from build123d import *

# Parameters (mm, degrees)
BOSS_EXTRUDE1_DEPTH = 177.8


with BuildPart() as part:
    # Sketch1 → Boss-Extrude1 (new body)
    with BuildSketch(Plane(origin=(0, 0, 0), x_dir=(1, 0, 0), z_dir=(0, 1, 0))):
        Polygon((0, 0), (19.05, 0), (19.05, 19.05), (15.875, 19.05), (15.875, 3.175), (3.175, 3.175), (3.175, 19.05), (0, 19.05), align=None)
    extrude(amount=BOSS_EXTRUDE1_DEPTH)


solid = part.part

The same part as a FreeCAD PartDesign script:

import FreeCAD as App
import Part
import Sketcher
from FreeCAD import Vector
Q = App.Units.Quantity

doc = App.newDocument("Part")
body = doc.addObject("PartDesign::Body", "Body")

sketch1 = body.newObject("Sketcher::SketchObject", "Sketch")
sketch1.AttachmentSupport = (doc.getObject("XZ_Plane"), [""])
sketch1.MapMode = "FlatFace"
sketch1.addGeometry([
    Part.LineSegment(Vector(0, 0, 0), Vector(19.05, 0, 0)),
    Part.LineSegment(Vector(19.05, 0, 0), Vector(19.05, -19.05, 0)),
    Part.LineSegment(Vector(19.05, -19.05, 0), Vector(15.875, -19.05, 0)),
    Part.LineSegment(Vector(15.875, -19.05, 0), Vector(15.875, -3.175, 0)),
    Part.LineSegment(Vector(15.875, -3.175, 0), Vector(3.175, -3.175, 0)),
    Part.LineSegment(Vector(3.175, -3.175, 0), Vector(3.175, -19.05, 0)),
    Part.LineSegment(Vector(3.175, -19.05, 0), Vector(0, -19.05, 0)),
    Part.LineSegment(Vector(0, -19.05, 0), Vector(0, 0, 0)),
], False)
sketch1.addConstraint([
    Sketcher.Constraint("Coincident", 0, 2, 1, 1),
    Sketcher.Constraint("Coincident", 1, 2, 2, 1),
    Sketcher.Constraint("Coincident", 2, 2, 3, 1),
    Sketcher.Constraint("Coincident", 3, 2, 4, 1),
    Sketcher.Constraint("Coincident", 4, 2, 5, 1),
    Sketcher.Constraint("Coincident", 5, 2, 6, 1),
    Sketcher.Constraint("Coincident", 6, 2, 7, 1),
    Sketcher.Constraint("Coincident", 7, 2, 0, 1),
    Sketcher.Constraint("Horizontal", 0),
    Sketcher.Constraint("Vertical", 1),
    Sketcher.Constraint("Horizontal", 2),
    Sketcher.Constraint("Vertical", 3),
    Sketcher.Constraint("Horizontal", 4),
    Sketcher.Constraint("Vertical", 5),
    Sketcher.Constraint("Horizontal", 6),
    Sketcher.Constraint("Vertical", 7),
    Sketcher.Constraint("Coincident", 7, 2, -1, 1),
    Sketcher.Constraint("Horizontal", 2, 2, 5, 2),
    Sketcher.Constraint("Equal", 2, 6),
    Sketcher.Constraint("Equal", 0, 1),
    Sketcher.Constraint("DistanceX", 4, 2, 4, 1, Q("0.5 in")),
    Sketcher.Constraint("DistanceX", 0, 1, 0, 2, Q("0.75 in")),
    Sketcher.Constraint("DistanceY", 3, 1, 3, 2, Q("0.625 in")),
])
pad1 = body.newObject("PartDesign::Pad", "Pad")
pad1.Profile = sketch1
pad1.Length = Q("7 in")
pad1.Reversed = True

doc.recompute()
